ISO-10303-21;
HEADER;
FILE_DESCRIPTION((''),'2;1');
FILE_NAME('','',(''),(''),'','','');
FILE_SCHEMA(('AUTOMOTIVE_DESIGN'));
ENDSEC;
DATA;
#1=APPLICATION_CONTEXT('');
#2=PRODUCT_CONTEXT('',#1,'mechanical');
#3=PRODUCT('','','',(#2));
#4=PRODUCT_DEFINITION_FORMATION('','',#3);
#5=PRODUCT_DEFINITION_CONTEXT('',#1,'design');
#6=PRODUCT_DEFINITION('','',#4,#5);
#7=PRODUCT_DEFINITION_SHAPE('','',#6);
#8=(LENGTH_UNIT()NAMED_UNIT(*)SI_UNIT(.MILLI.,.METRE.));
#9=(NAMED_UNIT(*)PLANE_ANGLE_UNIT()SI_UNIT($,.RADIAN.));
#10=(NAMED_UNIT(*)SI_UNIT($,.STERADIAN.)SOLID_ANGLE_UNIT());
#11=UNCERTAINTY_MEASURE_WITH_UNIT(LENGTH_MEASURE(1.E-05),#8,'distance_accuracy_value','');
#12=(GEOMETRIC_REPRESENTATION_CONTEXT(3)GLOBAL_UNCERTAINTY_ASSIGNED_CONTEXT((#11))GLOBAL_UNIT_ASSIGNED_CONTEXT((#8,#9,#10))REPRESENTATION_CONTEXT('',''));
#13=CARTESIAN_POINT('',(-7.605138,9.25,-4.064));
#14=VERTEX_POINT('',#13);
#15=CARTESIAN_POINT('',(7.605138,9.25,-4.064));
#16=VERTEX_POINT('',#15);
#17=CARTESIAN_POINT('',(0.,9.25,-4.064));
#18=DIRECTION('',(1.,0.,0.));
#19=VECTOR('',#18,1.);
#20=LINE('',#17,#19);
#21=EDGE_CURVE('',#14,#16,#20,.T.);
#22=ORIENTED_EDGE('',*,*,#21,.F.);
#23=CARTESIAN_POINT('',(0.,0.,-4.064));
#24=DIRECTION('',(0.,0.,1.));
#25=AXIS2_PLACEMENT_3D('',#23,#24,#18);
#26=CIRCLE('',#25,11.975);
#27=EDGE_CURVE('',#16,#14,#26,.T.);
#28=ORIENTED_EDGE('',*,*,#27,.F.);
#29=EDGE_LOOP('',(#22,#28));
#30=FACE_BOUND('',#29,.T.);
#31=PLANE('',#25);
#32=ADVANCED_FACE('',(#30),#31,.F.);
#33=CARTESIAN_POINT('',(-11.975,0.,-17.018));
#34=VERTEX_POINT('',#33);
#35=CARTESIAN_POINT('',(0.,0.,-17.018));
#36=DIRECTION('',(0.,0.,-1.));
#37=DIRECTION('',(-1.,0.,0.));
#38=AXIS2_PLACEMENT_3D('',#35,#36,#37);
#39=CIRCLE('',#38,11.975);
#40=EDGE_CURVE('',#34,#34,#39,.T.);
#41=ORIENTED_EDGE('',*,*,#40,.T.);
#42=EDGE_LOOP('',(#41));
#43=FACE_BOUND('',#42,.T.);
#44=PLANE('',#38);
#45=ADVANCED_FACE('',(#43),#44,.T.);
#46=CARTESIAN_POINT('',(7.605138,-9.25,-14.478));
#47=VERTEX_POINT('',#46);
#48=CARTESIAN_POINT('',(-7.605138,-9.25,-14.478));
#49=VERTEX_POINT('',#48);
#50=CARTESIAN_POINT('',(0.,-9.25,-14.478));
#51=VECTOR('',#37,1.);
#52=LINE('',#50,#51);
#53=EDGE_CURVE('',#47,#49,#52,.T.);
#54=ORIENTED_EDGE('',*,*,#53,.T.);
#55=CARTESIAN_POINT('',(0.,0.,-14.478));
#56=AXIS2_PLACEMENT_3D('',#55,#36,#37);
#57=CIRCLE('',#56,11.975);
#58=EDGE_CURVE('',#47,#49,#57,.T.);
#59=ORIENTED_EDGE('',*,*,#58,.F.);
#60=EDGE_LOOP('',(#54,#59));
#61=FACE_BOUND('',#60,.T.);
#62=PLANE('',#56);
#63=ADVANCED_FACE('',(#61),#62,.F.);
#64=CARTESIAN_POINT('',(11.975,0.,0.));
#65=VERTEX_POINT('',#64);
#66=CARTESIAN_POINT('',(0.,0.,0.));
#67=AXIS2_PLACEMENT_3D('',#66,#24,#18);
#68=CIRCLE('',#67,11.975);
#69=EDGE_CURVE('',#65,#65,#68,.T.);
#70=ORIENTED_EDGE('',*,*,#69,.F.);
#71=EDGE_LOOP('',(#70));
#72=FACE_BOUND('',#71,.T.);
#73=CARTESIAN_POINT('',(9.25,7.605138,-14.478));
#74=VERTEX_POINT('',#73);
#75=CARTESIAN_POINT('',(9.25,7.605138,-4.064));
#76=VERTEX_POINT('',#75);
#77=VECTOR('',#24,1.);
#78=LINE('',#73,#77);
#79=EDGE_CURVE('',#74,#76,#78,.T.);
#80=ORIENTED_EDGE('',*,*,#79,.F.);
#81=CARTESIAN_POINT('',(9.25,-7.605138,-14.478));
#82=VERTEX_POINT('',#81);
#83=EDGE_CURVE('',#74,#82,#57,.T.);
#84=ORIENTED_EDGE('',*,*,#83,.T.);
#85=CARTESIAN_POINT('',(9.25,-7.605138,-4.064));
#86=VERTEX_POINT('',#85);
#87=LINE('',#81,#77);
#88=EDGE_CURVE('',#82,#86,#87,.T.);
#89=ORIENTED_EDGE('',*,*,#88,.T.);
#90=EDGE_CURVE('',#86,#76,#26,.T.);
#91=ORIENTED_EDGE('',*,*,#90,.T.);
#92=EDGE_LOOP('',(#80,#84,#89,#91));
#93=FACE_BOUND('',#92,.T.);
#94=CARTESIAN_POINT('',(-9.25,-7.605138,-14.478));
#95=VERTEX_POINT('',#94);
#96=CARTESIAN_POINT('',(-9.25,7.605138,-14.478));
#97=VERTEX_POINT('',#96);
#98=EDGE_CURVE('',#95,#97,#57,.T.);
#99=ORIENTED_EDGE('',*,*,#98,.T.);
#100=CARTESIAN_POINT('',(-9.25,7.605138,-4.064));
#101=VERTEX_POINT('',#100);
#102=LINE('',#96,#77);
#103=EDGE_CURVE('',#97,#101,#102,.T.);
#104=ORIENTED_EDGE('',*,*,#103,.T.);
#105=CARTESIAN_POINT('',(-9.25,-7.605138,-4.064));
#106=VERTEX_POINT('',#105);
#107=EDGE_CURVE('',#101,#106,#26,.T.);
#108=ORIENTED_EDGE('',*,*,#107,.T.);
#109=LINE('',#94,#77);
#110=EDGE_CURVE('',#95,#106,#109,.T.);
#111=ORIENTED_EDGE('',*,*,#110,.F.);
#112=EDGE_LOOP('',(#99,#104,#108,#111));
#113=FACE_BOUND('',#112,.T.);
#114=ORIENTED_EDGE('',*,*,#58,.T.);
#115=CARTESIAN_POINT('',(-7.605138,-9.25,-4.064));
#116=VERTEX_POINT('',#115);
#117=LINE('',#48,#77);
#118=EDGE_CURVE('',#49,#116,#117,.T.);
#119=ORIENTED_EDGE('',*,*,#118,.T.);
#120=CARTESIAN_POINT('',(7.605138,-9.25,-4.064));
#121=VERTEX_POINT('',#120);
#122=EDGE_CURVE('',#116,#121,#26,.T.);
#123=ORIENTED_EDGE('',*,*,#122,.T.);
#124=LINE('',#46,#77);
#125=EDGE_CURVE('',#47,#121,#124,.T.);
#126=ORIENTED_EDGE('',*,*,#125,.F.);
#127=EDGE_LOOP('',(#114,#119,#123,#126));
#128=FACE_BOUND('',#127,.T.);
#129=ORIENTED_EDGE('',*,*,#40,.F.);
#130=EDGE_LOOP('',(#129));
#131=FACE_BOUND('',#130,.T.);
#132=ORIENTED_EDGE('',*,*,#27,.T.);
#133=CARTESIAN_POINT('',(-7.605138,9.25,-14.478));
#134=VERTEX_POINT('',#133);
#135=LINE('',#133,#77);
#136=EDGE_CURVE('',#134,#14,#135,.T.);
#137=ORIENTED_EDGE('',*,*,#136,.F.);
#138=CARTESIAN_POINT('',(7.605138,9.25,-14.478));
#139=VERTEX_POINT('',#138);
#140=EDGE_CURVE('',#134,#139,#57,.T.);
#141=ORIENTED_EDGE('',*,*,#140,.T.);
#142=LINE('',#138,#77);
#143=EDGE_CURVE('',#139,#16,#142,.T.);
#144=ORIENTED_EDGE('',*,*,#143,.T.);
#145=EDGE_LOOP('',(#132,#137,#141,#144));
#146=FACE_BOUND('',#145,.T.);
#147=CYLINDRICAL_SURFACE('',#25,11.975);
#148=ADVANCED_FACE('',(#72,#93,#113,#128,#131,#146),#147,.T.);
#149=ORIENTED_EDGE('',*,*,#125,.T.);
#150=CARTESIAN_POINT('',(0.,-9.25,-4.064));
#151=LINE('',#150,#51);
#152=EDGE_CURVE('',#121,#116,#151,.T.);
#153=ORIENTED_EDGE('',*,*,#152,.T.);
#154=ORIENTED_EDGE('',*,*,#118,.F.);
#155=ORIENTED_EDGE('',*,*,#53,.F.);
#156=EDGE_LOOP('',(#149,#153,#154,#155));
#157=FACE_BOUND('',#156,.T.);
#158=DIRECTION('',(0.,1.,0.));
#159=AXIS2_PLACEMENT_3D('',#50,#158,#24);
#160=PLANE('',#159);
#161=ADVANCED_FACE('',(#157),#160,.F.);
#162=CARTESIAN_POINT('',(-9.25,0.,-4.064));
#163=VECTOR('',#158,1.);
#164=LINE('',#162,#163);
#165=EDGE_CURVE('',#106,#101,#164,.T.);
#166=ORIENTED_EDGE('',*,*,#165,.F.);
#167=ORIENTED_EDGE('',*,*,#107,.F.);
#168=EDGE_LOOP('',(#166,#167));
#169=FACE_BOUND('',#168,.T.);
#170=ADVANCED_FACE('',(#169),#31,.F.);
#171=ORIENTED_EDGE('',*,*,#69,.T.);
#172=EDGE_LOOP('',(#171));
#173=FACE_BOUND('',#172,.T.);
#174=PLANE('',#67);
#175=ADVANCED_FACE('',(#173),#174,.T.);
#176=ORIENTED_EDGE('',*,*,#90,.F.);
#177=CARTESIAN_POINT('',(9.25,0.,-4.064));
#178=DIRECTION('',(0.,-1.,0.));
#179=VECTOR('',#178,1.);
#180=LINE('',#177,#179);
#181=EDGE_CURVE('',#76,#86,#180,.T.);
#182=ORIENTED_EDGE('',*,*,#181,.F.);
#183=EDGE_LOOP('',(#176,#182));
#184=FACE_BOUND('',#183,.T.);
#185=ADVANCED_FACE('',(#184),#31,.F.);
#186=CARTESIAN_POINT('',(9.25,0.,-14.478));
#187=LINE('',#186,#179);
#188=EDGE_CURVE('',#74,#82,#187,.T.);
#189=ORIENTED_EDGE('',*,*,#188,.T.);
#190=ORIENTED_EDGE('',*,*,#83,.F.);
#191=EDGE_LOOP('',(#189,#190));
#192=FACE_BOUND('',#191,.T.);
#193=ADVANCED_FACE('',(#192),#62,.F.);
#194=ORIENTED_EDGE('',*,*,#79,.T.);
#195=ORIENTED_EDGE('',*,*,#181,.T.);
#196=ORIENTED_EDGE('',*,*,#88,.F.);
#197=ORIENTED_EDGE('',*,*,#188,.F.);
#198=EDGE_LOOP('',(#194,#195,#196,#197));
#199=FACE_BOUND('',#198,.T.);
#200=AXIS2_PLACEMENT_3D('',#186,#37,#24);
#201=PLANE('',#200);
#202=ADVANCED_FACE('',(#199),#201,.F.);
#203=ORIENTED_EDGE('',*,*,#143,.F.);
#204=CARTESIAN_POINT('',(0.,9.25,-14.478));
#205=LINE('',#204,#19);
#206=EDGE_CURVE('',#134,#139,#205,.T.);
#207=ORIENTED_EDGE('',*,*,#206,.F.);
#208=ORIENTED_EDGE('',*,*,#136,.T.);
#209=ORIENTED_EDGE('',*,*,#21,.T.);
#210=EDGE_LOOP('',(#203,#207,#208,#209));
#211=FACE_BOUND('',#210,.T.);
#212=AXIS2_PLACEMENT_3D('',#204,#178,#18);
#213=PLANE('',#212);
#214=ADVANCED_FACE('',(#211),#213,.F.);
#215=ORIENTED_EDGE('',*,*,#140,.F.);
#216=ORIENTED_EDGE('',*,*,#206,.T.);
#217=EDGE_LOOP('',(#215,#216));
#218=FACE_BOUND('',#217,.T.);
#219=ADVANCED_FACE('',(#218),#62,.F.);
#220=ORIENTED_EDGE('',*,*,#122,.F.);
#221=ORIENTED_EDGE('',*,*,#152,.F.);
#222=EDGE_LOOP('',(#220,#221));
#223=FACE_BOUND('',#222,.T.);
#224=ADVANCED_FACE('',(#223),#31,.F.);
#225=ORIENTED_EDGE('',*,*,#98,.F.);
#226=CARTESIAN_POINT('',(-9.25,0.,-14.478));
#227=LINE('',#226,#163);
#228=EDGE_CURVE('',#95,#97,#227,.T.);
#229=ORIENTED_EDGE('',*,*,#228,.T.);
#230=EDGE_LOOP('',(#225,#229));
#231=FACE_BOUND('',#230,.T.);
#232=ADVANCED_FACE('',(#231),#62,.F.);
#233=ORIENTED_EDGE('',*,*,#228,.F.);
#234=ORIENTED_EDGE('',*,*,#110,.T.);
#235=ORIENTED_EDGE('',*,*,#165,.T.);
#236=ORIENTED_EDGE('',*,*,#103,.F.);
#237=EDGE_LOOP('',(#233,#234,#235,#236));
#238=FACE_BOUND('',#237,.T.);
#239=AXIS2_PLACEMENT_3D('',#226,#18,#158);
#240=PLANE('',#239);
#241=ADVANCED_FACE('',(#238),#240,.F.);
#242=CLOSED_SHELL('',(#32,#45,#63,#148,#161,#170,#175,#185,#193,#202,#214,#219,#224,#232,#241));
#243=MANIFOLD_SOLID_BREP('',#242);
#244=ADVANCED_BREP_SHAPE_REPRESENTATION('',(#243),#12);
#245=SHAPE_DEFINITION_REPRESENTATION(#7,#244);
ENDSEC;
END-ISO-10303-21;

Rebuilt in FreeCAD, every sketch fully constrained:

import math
import FreeCAD as App
import Part
import Sketcher

V = App.Vector
Q = App.Units.Quantity

doc = App.newDocument("Part")
params = doc.addObject("Spreadsheet::Sheet", "Params")
for row, (alias, value) in enumerate([
    ("pad1_length", "0.16 in"),
    ("pad2_length", "0.41 in"),
    ("pad3_length", "0.1 in"),
], start=1):
    params.set(f"A{row}", alias)
    params.set(f"B{row}", "=" + value)
    params.setAlias(f"B{row}", alias)

body = doc.addObject("PartDesign::Body", "Body")

# Sketch on XY plane
sketch1 = body.newObject("Sketcher::SketchObject", "Sketch")
sketch1.AttachmentSupport = (doc.getObject("XY_Plane"), [""])
sketch1.MapMode = "FlatFace"
sketch1.addGeometry(Part.Circle(V(0, 0, 0), V(0, 0, 1), 11.975), False)
sketch1.addConstraint(Sketcher.Constraint("Coincident", 0, 3, -1, 1))
sketch1.addConstraint(Sketcher.Constraint("Diameter", 0, Q("23.95 mm")))
pad1 = body.newObject("PartDesign::Pad", "Pad")
pad1.Profile = sketch1
pad1.setExpression("Length", "Params.pad1_length")
pad1.Reversed = True

# Sketch on XY plane
sketch2 = body.newObject("Sketcher::SketchObject", "Sketch001")
sketch2.AttachmentSupport = (doc.getObject("XY_Plane"), [""])
sketch2.MapMode = "FlatFace"
sketch2.AttachmentOffset = App.Placement(V(0, 0, -0.16 * 25.4), App.Rotation())
sketch2.addGeometry(Part.ArcOfCircle(Part.Circle(V(0, 0, 0), V(0, 0, 1), 11.975), math.radians(129.426259), math.radians(140.573741)), False)
sketch2.addGeometry(Part.LineSegment(V(-7.605138, 9.25, 0), V(7.605138, 9.25, 0)), False)
sketch2.addGeometry(Part.ArcOfCircle(Part.Circle(V(0, 0, 0), V(0, 0, 1), 11.975), math.radians(39.426259), math.radians(50.573741)), False)
sketch2.addGeometry(Part.LineSegment(V(9.25, 7.605138, 0), V(9.25, -7.605138, 0)), False)
sketch2.addGeometry(Part.ArcOfCircle(Part.Circle(V(0, 0, 0), V(0, 0, 1), 11.975), math.radians(-50.573741), math.radians(-39.426259)), False)
sketch2.addGeometry(Part.LineSegment(V(7.605138, -9.25, 0), V(-7.605138, -9.25, 0)), False)
sketch2.addGeometry(Part.ArcOfCircle(Part.Circle(V(0, 0, 0), V(0, 0, 1), 11.975), math.radians(-140.573741), math.radians(-129.426259)), False)
sketch2.addGeometry(Part.LineSegment(V(-9.25, -7.605138, 0), V(-9.25, 7.605138, 0)), False)
sketch2.addConstraint(Sketcher.Constraint("Coincident", 0, 1, 1, 1))
sketch2.addConstraint(Sketcher.Constraint("Coincident", 1, 2, 2, 2))
sketch2.addConstraint(Sketcher.Constraint("Coincident", 2, 1, 3, 1))
sketch2.addConstraint(Sketcher.Constraint("Coincident", 3, 2, 4, 2))
sketch2.addConstraint(Sketcher.Constraint("Coincident", 4, 1, 5, 1))
sketch2.addConstraint(Sketcher.Constraint("Coincident", 5, 2, 6, 2))
sketch2.addConstraint(Sketcher.Constraint("Coincident", 6, 1, 7, 1))
sketch2.addConstraint(Sketcher.Constraint("Coincident", 7, 2, 0, 2))
sketch2.addConstraint(Sketcher.Constraint("Horizontal", 1))
sketch2.addConstraint(Sketcher.Constraint("Vertical", 3))
sketch2.addConstraint(Sketcher.Constraint("Horizontal", 5))
sketch2.addConstraint(Sketcher.Constraint("Vertical", 7))
sketch2.addConstraint(Sketcher.Constraint("Coincident", 0, 3, -1, 1))
sketch2.addConstraint(Sketcher.Constraint("Coincident", 2, 3, -1, 1))
sketch2.addConstraint(Sketcher.Constraint("Coincident", 4, 3, -1, 1))
sketch2.addConstraint(Sketcher.Constraint("Coincident", 6, 3, -1, 1))
sketch2.addConstraint(Sketcher.Constraint("Equal", 0, 2))
sketch2.addConstraint(Sketcher.Constraint("Equal", 2, 4))
sketch2.addConstraint(Sketcher.Constraint("Equal", 4, 6))
sketch2.addConstraint(Sketcher.Constraint("Horizontal", 3, 2, 6, 1))
sketch2.addConstraint(Sketcher.Constraint("Vertical", 1, 2, 4, 1))
sketch2.addConstraint(Sketcher.Constraint("Equal", 5, 3))
sketch2.addConstraint(Sketcher.Constraint("Radius", 0, Q("11.975 mm")))
sketch2.addConstraint(Sketcher.Constraint("DistanceY", -1, 1, 0, 1, Q("9.25 mm")))
pad2 = body.newObject("PartDesign::Pad", "Pad001")
pad2.Profile = sketch2
pad2.setExpression("Length", "Params.pad2_length")
pad2.Reversed = True

# Sketch on XY plane
sketch3 = body.newObject("Sketcher::SketchObject", "Sketch002")
sketch3.AttachmentSupport = (doc.getObject("XY_Plane"), [""])
sketch3.MapMode = "FlatFace"
sketch3.AttachmentOffset = App.Placement(V(0, 0, -0.57 * 25.4), App.Rotation())
sketch3.addGeometry(Part.Circle(V(0, 0, 0), V(0, 0, 1), 11.975), False)
sketch3.addConstraint(Sketcher.Constraint("Coincident", 0, 3, -1, 1))
sketch3.addConstraint(Sketcher.Constraint("Diameter", 0, Q("23.95 mm")))
pad3 = body.newObject("PartDesign::Pad", "Pad002")
pad3.Profile = sketch3
pad3.setExpression("Length", "Params.pad3_length")
pad3.Reversed = True

doc.recompute()
